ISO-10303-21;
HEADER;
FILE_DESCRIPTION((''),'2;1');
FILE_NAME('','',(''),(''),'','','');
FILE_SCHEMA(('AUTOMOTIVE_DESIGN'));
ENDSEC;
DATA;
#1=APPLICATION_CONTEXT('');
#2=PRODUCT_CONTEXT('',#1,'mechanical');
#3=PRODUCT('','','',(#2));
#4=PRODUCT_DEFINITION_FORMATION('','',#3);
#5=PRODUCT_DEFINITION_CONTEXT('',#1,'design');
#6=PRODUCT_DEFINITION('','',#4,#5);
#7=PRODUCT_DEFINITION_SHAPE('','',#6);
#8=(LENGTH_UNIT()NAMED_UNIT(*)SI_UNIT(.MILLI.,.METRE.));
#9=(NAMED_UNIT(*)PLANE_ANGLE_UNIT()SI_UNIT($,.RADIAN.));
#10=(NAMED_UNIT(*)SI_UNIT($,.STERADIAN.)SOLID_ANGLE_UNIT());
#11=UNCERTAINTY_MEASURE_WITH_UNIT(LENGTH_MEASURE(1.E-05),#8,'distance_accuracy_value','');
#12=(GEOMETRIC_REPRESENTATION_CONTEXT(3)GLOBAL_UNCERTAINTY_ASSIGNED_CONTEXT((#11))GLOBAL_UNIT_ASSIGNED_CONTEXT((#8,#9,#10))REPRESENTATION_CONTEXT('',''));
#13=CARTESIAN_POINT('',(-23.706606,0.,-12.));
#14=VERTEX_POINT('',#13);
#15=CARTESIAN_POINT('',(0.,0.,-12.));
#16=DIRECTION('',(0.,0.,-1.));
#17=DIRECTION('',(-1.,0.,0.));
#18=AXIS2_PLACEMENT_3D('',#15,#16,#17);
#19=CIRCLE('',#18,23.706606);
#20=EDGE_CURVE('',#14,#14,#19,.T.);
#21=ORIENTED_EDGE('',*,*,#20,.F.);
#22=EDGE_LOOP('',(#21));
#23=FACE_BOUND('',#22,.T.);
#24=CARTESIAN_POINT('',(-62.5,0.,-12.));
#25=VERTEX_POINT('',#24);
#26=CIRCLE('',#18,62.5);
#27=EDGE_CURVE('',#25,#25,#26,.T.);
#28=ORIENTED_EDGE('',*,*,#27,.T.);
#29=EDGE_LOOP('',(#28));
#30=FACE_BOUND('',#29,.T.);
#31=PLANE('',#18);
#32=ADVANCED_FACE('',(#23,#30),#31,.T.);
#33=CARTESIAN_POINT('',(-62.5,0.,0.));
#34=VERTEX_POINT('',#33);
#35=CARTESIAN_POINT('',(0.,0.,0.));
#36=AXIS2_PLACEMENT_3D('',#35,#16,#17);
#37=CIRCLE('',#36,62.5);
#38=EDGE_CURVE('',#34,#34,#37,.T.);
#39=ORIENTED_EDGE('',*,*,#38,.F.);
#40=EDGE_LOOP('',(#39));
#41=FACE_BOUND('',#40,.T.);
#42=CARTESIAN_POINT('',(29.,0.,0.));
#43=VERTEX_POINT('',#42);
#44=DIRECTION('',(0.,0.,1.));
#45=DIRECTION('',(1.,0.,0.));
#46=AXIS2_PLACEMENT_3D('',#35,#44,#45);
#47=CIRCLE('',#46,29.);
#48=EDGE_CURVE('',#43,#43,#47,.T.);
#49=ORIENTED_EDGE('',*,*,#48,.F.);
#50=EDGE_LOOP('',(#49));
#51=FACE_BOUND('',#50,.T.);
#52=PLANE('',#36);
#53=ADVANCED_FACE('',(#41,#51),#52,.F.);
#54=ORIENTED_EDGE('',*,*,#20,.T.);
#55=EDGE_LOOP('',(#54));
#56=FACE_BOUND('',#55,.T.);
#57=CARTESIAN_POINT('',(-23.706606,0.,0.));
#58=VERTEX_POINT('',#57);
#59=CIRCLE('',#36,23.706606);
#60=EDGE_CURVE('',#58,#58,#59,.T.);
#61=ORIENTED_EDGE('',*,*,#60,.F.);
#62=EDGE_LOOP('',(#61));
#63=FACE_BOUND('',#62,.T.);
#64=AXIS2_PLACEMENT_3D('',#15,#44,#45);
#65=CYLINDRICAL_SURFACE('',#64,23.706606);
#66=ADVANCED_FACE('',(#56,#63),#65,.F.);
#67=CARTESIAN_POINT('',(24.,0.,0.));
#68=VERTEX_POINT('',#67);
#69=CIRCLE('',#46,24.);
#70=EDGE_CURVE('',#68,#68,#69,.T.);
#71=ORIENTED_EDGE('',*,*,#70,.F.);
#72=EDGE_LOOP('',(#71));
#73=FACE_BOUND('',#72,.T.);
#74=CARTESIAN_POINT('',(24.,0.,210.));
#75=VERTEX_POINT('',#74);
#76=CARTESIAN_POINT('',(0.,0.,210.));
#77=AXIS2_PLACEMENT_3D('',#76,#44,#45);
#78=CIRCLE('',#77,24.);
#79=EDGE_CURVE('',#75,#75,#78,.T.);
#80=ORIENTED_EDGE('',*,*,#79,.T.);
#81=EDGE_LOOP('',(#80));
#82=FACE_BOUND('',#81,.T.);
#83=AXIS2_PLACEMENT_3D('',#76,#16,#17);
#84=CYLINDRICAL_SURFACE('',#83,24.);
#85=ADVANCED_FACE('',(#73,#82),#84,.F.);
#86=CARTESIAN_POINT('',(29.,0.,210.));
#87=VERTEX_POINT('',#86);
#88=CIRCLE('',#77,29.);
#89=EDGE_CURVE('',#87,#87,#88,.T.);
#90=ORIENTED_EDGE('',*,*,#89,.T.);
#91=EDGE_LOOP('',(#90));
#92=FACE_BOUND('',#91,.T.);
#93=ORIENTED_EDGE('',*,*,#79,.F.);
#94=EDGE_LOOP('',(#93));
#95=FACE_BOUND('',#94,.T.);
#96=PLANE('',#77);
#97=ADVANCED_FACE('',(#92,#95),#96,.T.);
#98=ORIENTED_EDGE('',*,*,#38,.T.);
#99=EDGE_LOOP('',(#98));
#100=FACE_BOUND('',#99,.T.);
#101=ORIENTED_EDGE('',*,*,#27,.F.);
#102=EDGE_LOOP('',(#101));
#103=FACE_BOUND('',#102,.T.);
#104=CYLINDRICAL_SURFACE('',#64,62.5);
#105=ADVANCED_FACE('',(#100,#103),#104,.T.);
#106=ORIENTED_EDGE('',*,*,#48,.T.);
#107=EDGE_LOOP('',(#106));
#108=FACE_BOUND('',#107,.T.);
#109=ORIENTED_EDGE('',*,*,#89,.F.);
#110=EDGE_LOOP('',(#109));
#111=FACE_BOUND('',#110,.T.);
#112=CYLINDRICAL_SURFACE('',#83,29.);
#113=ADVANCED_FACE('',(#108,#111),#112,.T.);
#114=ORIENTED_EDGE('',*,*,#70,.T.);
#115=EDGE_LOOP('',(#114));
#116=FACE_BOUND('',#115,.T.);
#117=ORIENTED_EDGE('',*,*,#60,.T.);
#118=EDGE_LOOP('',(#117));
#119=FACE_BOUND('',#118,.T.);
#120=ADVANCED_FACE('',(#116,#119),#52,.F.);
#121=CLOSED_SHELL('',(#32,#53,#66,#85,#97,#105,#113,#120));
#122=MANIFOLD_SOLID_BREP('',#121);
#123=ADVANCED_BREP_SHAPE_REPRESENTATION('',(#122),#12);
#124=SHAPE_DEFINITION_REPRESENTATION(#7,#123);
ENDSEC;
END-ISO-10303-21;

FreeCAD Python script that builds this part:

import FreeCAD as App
import Part
import Sketcher

doc = App.newDocument("Part")
body = doc.addObject("PartDesign::Body", "Body")

sketch1 = doc.addObject("Sketcher::SketchObject", "Sketch")
body.addObject(sketch1)
sketch1.AttachmentSupport = (doc.XY_Plane, [""])
sketch1.MapMode = "FlatFace"
sketch1.addGeometry(Part.Circle(App.Vector(0, 0, 0), App.Vector(0, 0, 1), 29), False)
sketch1.addGeometry(Part.Circle(App.Vector(0, 0, 0), App.Vector(0, 0, 1), 24), False)
sketch1.addConstraint(Sketcher.Constraint("Coincident", 0, 3, -1, 1))
sketch1.addConstraint(Sketcher.Constraint("Coincident", 1, 3, -1, 1))
sketch1.addConstraint(Sketcher.Constraint("Diameter", 0, 58.0))
sketch1.addConstraint(Sketcher.Constraint("Diameter", 1, 48.0))
pad1 = doc.addObject("PartDesign::Pad", "Pad")
body.addObject(pad1)
pad1.Profile = sketch1
pad1.Length = 210

sketch2 = doc.addObject("Sketcher::SketchObject", "Sketch001")
body.addObject(sketch2)
sketch2.AttachmentSupport = (doc.XY_Plane, [""])
sketch2.MapMode = "FlatFace"
sketch2.addGeometry(Part.Circle(App.Vector(0, 0, 0), App.Vector(0, 0, 1), 62.5), False)
sketch2.addGeometry(Part.Circle(App.Vector(0, 0, 0), App.Vector(0, 0, 1), 23.706606), False)
sketch2.addConstraint(Sketcher.Constraint("Coincident", 0, 3, -1, 1))
sketch2.addConstraint(Sketcher.Constraint("Coincident", 1, 3, -1, 1))
sketch2.addConstraint(Sketcher.Constraint("Diameter", 0, 125.0))
sketch2.addConstraint(Sketcher.Constraint("Diameter", 1, 47.413211))
pad2 = doc.addObject("PartDesign::Pad", "Pad001")
body.addObject(pad2)
pad2.Profile = sketch2
pad2.Length = 12
pad2.Reversed = True

doc.recompute()
